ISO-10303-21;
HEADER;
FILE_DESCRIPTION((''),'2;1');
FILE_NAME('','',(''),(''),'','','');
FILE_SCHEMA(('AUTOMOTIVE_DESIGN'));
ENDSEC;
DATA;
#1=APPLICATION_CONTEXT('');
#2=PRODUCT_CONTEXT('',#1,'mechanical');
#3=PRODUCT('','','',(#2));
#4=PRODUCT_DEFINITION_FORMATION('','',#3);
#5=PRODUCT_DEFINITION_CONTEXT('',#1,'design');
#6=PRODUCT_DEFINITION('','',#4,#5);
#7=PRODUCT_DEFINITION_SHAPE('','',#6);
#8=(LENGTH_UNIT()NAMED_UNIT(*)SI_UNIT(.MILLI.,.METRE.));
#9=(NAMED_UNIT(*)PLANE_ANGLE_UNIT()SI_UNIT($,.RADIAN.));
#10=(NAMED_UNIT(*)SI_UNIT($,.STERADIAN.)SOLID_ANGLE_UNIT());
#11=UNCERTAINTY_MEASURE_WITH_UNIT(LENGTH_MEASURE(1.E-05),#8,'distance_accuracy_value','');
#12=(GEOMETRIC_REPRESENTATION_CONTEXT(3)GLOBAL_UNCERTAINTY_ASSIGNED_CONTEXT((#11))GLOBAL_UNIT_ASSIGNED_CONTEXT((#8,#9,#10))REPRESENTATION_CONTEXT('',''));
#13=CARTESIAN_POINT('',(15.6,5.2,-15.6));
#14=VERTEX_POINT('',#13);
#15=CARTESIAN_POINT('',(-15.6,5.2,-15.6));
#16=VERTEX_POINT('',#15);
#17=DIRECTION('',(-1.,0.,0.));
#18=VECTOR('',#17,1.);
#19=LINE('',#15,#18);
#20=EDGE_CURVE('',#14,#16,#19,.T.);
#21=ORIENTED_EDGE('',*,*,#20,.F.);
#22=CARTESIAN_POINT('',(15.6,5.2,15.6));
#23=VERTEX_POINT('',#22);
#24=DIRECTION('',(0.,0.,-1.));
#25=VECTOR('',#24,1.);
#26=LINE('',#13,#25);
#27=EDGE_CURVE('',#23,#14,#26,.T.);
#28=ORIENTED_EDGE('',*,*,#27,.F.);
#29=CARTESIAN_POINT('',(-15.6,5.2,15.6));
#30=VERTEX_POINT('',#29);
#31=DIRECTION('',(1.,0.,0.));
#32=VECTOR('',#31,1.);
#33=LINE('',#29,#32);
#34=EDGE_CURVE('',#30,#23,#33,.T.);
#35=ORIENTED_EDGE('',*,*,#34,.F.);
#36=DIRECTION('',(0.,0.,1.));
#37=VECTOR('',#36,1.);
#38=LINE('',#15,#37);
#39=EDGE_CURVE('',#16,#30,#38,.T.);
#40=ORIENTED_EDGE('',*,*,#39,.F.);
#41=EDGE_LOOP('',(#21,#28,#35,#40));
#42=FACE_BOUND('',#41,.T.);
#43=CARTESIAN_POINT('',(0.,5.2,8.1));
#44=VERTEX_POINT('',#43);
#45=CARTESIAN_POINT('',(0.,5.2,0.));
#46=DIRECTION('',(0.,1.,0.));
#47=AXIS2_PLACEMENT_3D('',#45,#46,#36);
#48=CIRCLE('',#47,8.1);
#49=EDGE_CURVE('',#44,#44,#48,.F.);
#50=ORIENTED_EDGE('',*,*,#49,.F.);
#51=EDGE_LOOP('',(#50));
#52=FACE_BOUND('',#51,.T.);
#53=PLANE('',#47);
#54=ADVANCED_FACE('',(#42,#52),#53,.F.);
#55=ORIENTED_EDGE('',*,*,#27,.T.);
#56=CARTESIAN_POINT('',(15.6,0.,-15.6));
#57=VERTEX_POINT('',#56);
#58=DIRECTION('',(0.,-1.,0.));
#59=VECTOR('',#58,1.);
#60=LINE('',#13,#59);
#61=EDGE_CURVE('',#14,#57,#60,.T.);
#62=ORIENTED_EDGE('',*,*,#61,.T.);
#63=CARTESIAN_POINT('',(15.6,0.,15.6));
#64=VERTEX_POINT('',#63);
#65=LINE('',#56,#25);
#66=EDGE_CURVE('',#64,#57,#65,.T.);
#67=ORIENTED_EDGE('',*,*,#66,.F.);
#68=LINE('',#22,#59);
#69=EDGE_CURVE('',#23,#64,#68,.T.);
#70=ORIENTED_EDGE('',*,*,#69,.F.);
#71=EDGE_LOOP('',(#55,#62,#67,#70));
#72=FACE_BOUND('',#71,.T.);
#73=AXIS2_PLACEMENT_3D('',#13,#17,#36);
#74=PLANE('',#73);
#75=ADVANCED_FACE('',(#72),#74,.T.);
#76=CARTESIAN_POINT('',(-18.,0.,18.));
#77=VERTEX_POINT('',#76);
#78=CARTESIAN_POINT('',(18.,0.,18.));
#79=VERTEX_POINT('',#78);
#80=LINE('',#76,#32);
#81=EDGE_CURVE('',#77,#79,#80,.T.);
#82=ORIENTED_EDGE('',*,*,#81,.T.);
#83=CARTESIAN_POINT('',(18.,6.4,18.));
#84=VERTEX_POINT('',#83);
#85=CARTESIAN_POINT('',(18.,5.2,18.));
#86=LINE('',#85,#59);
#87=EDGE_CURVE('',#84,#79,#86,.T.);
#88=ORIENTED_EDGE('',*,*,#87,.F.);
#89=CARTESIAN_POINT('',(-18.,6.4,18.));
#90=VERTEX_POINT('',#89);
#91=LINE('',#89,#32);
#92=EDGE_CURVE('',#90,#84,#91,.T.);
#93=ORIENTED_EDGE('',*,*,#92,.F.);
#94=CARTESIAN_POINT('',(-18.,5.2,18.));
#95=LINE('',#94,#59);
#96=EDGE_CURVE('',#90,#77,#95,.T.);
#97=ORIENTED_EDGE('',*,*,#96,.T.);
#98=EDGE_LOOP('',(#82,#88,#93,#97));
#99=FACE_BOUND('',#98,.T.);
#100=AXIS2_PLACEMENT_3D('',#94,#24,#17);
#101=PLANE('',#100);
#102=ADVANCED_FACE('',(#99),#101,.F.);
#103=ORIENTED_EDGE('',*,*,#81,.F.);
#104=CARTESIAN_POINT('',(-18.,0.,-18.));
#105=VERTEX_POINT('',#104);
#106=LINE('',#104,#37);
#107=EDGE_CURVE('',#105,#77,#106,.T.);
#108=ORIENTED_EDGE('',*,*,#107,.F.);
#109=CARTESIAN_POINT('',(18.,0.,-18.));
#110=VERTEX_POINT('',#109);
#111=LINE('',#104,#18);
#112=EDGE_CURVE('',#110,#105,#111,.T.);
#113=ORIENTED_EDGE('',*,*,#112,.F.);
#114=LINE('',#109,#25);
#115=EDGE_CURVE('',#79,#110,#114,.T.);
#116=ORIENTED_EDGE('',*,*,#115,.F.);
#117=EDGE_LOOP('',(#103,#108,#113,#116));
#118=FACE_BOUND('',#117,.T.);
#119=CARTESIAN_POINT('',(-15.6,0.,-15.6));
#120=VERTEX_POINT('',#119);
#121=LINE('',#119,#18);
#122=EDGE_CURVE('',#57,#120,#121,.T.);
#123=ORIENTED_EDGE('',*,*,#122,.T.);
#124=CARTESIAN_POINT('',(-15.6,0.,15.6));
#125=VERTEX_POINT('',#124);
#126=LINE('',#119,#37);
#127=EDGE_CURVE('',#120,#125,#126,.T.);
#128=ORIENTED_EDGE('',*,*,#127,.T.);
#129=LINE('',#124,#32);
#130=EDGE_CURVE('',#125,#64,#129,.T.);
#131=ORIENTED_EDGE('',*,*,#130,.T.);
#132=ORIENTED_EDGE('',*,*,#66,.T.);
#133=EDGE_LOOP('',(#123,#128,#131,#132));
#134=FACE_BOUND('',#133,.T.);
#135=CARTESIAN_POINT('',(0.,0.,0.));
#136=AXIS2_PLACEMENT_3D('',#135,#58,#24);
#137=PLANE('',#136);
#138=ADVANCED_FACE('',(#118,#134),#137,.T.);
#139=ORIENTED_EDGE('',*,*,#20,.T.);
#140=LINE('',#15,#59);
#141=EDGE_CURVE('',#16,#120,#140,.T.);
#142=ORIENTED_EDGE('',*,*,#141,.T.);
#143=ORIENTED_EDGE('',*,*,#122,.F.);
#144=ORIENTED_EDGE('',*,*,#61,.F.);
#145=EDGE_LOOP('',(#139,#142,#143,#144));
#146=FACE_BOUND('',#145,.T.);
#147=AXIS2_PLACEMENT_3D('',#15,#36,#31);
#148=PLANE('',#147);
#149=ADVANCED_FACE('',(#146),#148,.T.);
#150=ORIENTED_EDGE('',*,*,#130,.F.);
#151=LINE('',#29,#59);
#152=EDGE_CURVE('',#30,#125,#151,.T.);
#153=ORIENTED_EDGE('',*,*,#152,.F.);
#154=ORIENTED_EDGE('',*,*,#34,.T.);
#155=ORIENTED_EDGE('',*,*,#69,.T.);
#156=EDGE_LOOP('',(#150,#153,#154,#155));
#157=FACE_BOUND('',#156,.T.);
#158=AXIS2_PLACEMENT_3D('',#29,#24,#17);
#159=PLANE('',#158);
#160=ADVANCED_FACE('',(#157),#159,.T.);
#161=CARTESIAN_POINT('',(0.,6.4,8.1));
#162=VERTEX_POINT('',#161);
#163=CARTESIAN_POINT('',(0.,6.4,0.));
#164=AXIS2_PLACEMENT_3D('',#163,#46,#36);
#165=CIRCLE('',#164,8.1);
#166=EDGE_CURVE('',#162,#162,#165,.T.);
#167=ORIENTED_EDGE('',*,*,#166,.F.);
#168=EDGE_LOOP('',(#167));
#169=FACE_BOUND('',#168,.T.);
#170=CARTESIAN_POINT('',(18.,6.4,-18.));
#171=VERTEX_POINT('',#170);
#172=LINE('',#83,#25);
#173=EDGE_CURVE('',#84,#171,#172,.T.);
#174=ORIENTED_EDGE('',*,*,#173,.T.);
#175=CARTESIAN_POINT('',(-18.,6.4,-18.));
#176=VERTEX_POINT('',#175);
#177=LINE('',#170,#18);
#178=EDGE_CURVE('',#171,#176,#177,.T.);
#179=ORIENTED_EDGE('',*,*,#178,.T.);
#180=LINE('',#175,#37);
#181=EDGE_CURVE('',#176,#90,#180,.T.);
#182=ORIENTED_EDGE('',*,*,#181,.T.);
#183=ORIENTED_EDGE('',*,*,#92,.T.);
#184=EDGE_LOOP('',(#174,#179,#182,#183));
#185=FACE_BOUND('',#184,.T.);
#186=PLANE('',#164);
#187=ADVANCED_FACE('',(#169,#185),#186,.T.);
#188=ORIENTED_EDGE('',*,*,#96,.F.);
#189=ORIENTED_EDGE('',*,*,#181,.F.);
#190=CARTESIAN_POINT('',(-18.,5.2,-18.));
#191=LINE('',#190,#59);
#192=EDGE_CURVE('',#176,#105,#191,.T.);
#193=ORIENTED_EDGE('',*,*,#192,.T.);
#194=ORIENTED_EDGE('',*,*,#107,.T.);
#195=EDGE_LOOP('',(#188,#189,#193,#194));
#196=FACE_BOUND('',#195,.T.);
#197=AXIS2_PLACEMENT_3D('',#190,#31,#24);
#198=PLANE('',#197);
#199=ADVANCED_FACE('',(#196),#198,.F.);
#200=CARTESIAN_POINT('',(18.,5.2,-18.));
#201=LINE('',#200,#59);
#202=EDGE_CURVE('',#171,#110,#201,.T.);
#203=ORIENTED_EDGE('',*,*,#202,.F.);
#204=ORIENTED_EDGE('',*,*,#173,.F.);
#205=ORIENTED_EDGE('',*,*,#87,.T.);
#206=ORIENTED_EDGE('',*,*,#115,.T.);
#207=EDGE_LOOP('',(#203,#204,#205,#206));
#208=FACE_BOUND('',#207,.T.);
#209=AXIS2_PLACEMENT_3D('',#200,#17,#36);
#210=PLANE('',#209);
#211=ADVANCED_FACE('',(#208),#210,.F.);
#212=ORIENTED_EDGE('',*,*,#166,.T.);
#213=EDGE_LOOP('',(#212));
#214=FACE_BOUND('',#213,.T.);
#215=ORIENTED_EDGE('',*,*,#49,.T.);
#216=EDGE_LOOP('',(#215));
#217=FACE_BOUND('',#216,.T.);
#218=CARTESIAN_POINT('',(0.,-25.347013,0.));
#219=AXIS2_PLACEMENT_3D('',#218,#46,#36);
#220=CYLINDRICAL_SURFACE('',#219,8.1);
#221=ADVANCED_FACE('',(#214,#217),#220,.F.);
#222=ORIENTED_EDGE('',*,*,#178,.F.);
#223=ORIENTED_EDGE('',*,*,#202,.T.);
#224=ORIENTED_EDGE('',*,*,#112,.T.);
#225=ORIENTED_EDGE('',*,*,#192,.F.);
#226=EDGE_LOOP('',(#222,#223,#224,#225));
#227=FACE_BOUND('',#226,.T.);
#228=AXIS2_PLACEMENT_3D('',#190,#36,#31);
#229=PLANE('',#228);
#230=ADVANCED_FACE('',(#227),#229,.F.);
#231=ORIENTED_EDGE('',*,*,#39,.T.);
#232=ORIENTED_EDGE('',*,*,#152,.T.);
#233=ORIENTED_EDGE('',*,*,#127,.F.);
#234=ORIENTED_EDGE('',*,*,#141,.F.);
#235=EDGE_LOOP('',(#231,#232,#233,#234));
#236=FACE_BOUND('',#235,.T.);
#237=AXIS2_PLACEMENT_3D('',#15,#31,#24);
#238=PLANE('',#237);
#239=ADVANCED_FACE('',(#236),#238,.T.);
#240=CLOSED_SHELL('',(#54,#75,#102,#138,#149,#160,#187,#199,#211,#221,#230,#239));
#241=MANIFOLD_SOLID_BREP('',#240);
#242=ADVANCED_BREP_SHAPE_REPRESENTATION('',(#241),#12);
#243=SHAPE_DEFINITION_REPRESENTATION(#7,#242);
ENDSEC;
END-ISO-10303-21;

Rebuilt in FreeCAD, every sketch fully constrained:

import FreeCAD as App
import Part
import Sketcher
Q = App.Units.Quantity

doc = App.newDocument("Part")
body = doc.addObject("PartDesign::Body", "Body")

sketch1 = doc.addObject("Sketcher::SketchObject", "Sketch")
body.addObject(sketch1)
sketch1.AttachmentSupport = (doc.XZ_Plane, [""])
sketch1.MapMode = "FlatFace"
sketch1.addGeometry([
    Part.LineSegment(App.Vector(-18, -18, 0), App.Vector(-18, 18, 0)),
    Part.LineSegment(App.Vector(-18, 18, 0), App.Vector(18, 18, 0)),
    Part.LineSegment(App.Vector(18, 18, 0), App.Vector(18, -18, 0)),
    Part.LineSegment(App.Vector(18, -18, 0), App.Vector(-18, -18, 0)),
    Part.LineSegment(App.Vector(16, 16, 0), App.Vector(-16, 16, 0)),
    Part.LineSegment(App.Vector(-16, 16, 0), App.Vector(-16, -16, 0)),
    Part.LineSegment(App.Vector(-16, -16, 0), App.Vector(16, -16, 0)),
    Part.LineSegment(App.Vector(16, -16, 0), App.Vector(16, 16, 0)),
], False)
sketch1.addConstraint([
    Sketcher.Constraint("Coincident", 0, 2, 1, 1),
    Sketcher.Constraint("Coincident", 1, 2, 2, 1),
    Sketcher.Constraint("Coincident", 2, 2, 3, 1),
    Sketcher.Constraint("Coincident", 3, 2, 0, 1),
    Sketcher.Constraint("Coincident", 4, 2, 5, 1),
    Sketcher.Constraint("Coincident", 5, 2, 6, 1),
    Sketcher.Constraint("Coincident", 6, 2, 7, 1),
    Sketcher.Constraint("Coincident", 7, 2, 4, 1),
    Sketcher.Constraint("Vertical", 0),
    Sketcher.Constraint("Horizontal", 1),
    Sketcher.Constraint("Vertical", 2),
    Sketcher.Constraint("Horizontal", 3),
    Sketcher.Constraint("Horizontal", 4),
    Sketcher.Constraint("Vertical", 5),
    Sketcher.Constraint("Horizontal", 6),
    Sketcher.Constraint("Vertical", 7),
    Sketcher.Constraint("Symmetric", 0, 2, 2, 2, -1, 1),
    Sketcher.Constraint("Symmetric", 4, 2, 6, 2, -1, 1),
    Sketcher.Constraint("Equal", 3, 0),
    Sketcher.Constraint("Equal", 6, 5),
    Sketcher.Constraint("DistanceX", 1, 1, 1, 2, Q("36 mm")),
    Sketcher.Constraint("DistanceX", 4, 2, 4, 1, Q("31.2 mm")),
])
pad1 = doc.addObject("PartDesign::Pad", "Pad")
body.addObject(pad1)
pad1.Profile = sketch1
pad1.Length = 5.2
pad1.Reversed = True

sketch2 = doc.addObject("Sketcher::SketchObject", "Sketch001")
body.addObject(sketch2)
sketch2.AttachmentSupport = (doc.XZ_Plane, [""])
sketch2.MapMode = "FlatFace"
sketch2.AttachmentOffset = App.Placement(App.Vector(0, 0, -5.2), App.Rotation())
sketch2.addGeometry([
    Part.LineSegment(App.Vector(-18, -18, 0), App.Vector(-18, 18, 0)),
    Part.LineSegment(App.Vector(-18, 18, 0), App.Vector(18, 18, 0)),
    Part.LineSegment(App.Vector(18, 18, 0), App.Vector(18, -18, 0)),
    Part.LineSegment(App.Vector(18, -18, 0), App.Vector(-18, -18, 0)),
    Part.LineSegment(App.Vector(11, 11, 0), App.Vector(-11, 11, 0)),
    Part.LineSegment(App.Vector(-11, 11, 0), App.Vector(-11, -11, 0)),
    Part.LineSegment(App.Vector(-11, -11, 0), App.Vector(11, -11, 0)),
    Part.LineSegment(App.Vector(11, -11, 0), App.Vector(11, 11, 0)),
], False)
sketch2.addConstraint([
    Sketcher.Constraint("Coincident", 0, 2, 1, 1),
    Sketcher.Constraint("Coincident", 1, 2, 2, 1),
    Sketcher.Constraint("Coincident", 2, 2, 3, 1),
    Sketcher.Constraint("Coincident", 3, 2, 0, 1),
    Sketcher.Constraint("Coincident", 4, 2, 5, 1),
    Sketcher.Constraint("Coincident", 5, 2, 6, 1),
    Sketcher.Constraint("Coincident", 6, 2, 7, 1),
    Sketcher.Constraint("Coincident", 7, 2, 4, 1),
    Sketcher.Constraint("Vertical", 0),
    Sketcher.Constraint("Horizontal", 1),
    Sketcher.Constraint("Vertical", 2),
    Sketcher.Constraint("Horizontal", 3),
    Sketcher.Constraint("Horizontal", 4),
    Sketcher.Constraint("Vertical", 5),
    Sketcher.Constraint("Horizontal", 6),
    Sketcher.Constraint("Vertical", 7),
    Sketcher.Constraint("Symmetric", 0, 2, 2, 2, -1, 1),
    Sketcher.Constraint("Symmetric", 4, 2, 6, 2, -1, 1),
    Sketcher.Constraint("Equal", 3, 0),
    Sketcher.Constraint("Equal", 6, 5),
    Sketcher.Constraint("DistanceX", 1, 1, 1, 2, Q("36 mm")),
    Sketcher.Constraint("DistanceX", 4, 2, 4, 1, Q("21.6 mm")),
])
pad2 = doc.addObject("PartDesign::Pad", "Pad001")
body.addObject(pad2)
pad2.Profile = sketch2
pad2.Length = 1.2
pad2.Reversed = True

sketch3 = doc.addObject("Sketcher::SketchObject", "Sketch002")
body.addObject(sketch3)
sketch3.AttachmentSupport = (doc.XZ_Plane, [""])
sketch3.MapMode = "FlatFace"
sketch3.AttachmentOffset = App.Placement(App.Vector(0, 0, -6.4), App.Rotation())
sketch3.addGeometry([
    Part.LineSegment(App.Vector(-11, -11, 0), App.Vector(-11, 11, 0)),
    Part.LineSegment(App.Vector(-11, 11, 0), App.Vector(11, 11, 0)),
    Part.LineSegment(App.Vector(11, 11, 0), App.Vector(11, -11, 0)),
    Part.LineSegment(App.Vector(11, -11, 0), App.Vector(-11, -11, 0)),
    Part.Circle(App.Vector(0, 0, 0), App.Vector(0, 0, 1), 8),
], False)
sketch3.addConstraint([
    Sketcher.Constraint("Coincident", 0, 2, 1, 1),
    Sketcher.Constraint("Coincident", 1, 2, 2, 1),
    Sketcher.Constraint("Coincident", 2, 2, 3, 1),
    Sketcher.Constraint("Coincident", 3, 2, 0, 1),
    Sketcher.Constraint("Vertical", 0),
    Sketcher.Constraint("Horizontal", 1),
    Sketcher.Constraint("Vertical", 2),
    Sketcher.Constraint("Horizontal", 3),
    Sketcher.Constraint("Coincident", 4, 3, -1, 1),
    Sketcher.Constraint("Symmetric", 0, 2, 2, 2, -1, 1),
    Sketcher.Constraint("Equal", 3, 0),
    Sketcher.Constraint("Diameter", 4, Q("16.2 mm")),
    Sketcher.Constraint("DistanceX", 1, 1, 1, 2, Q("21.6 mm")),
])
pad3 = doc.addObject("PartDesign::Pad", "Pad002")
body.addObject(pad3)
pad3.Profile = sketch3
pad3.Length = 1.2

doc.recompute()
